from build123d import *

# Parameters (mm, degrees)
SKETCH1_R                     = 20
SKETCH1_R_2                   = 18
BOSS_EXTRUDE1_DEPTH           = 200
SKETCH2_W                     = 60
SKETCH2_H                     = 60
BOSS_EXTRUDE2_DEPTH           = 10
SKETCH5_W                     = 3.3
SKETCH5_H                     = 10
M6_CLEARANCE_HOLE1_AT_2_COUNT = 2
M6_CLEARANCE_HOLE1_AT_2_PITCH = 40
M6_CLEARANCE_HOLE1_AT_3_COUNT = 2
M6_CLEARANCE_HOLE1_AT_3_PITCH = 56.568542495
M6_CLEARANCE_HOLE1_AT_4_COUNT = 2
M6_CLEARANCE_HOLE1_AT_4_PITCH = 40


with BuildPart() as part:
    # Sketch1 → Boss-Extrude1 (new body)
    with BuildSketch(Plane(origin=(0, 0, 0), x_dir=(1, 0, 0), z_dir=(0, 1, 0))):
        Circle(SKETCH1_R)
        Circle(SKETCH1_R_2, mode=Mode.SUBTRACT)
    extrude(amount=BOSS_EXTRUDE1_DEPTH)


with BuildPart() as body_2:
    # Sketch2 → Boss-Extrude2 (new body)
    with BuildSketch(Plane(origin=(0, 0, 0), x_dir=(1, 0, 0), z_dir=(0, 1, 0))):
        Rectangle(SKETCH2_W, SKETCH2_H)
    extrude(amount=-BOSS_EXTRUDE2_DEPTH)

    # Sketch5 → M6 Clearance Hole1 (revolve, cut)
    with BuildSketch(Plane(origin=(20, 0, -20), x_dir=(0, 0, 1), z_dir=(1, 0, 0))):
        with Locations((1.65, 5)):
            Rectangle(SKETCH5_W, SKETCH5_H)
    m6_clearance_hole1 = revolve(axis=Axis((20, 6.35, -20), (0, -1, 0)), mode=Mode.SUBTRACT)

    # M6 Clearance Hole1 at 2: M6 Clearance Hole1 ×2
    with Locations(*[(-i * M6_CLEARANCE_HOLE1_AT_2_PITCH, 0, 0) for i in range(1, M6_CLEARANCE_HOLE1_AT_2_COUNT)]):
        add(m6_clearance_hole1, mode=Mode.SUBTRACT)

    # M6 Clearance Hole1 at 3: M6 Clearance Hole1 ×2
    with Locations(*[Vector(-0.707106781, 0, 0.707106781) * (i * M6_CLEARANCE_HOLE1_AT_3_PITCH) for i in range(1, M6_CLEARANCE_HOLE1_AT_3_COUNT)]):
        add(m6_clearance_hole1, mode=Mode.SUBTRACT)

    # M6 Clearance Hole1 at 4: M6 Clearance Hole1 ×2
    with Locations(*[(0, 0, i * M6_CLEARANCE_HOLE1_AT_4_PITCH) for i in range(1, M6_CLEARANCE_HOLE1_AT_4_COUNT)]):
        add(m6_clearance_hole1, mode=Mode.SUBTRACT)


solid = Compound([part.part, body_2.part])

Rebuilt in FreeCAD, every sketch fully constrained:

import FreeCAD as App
import Part
import Sketcher
from FreeCAD import Vector


def add_polygon(sketch, points):
    """Adds a closed chain of lines whose ends are joined by coincident constraints."""
    first, n = sketch.GeometryCount, len(points)
    for a, b in zip(points, points[1:] + points[:1]):
        sketch.addGeometry(Part.LineSegment(App.Vector(*a, 0), App.Vector(*b, 0)), False)
    for i in range(n):
        sketch.addConstraint(Sketcher.Constraint("Coincident", first + i, 2, first + (i + 1) % n, 1))

doc = App.newDocument("Part")
body = doc.addObject("PartDesign::Body", "Body")

sketch1 = body.newObject("Sketcher::SketchObject", "Sketch")
sketch1.AttachmentSupport = (doc.getObject("XZ_Plane"), [""])
sketch1.MapMode = "FlatFace"
sketch1.addGeometry([
    Part.Circle(Vector(0, 0, 0), Vector(0, 0, 1), 20),
    Part.Circle(Vector(0, 0, 0), Vector(0, 0, 1), 18),
], False)
sketch1.addConstraint([
    Sketcher.Constraint("Coincident", 0, 3, -1, 1),
    Sketcher.Constraint("Coincident", 1, 3, -1, 1),
    Sketcher.Constraint("Diameter", 0, 40.0),
    Sketcher.Constraint("Diameter", 1, 36.0),
])
pad1 = body.newObject("PartDesign::Pad", "Pad")
pad1.Profile = sketch1
pad1.Length = 200
pad1.Reversed = True
body2 = doc.addObject("PartDesign::Body", "Body001")

sketch2 = body2.newObject("Sketcher::SketchObject", "Sketch001")
sketch2.AttachmentSupport = (doc.getObject("XZ_Plane001"), [""])
sketch2.MapMode = "FlatFace"
add_polygon(sketch2, [(-30, -30), (-30, 30), (30, 30), (30, -30)])
sketch2.addConstraint([
    Sketcher.Constraint("Vertical", 0),
    Sketcher.Constraint("Horizontal", 1),
    Sketcher.Constraint("Vertical", 2),
    Sketcher.Constraint("Horizontal", 3),
    Sketcher.Constraint("Symmetric", 0, 2, 2, 2, -1, 1),
    Sketcher.Constraint("Equal", 3, 0),
    Sketcher.Constraint("DistanceX", 1, 1, 1, 2, 60.0),
])
pad2 = body2.newObject("PartDesign::Pad", "Pad001")
pad2.Profile = sketch2
pad2.Length = 10

sketch3 = body2.newObject("Sketcher::SketchObject", "Sketch002")
sketch3.AttachmentSupport = (doc.getObject("YZ_Plane001"), [""])
sketch3.MapMode = "FlatFace"
sketch3.AttachmentOffset = App.Placement(Vector(0, 0, 20), App.Rotation())
add_polygon(sketch3, [(-10, -20), (0, -20), (0, -16.7), (-10, -16.7)])
sketch3.addGeometry(Part.LineSegment(Vector(0, -20, 0), Vector(-10, -20, 0)), True)
sketch3.addConstraint([
    Sketcher.Constraint("Horizontal", 0),
    Sketcher.Constraint("Vertical", 1),
    Sketcher.Constraint("Horizontal", 2),
    Sketcher.Constraint("Vertical", 3),
    Sketcher.Constraint("Horizontal", 4),
    Sketcher.Constraint("Coincident", 4, 1, 0, 2),
    Sketcher.Constraint("PointOnObject", 0, 2, -2),
    Sketcher.Constraint("Vertical", 2, 2, 4, 2),
    Sketcher.Constraint("DistanceX", 0, 1, 0, 2, 10.0),
    Sketcher.Constraint("DistanceY", 1, 1, 1, 2, 3.3),
    Sketcher.Constraint("DistanceY", 0, 2, -1, 1, 20.0),
])
groove = body2.newObject("PartDesign::Groove", "Groove")
groove.Profile = sketch3
groove.ReferenceAxis = (sketch3, ["Axis0"])
groove.Angle = 360
doc.recompute()

linearpattern = body2.newObject("PartDesign::LinearPattern", "LinearPattern")
linearpattern.Originals = [groove]
linearpattern.Direction = (doc.getObject("X_Axis001"), [""])
linearpattern.Mode = "offset"
linearpattern.Offset = 40
linearpattern.Occurrences = 2
linearpattern.Reversed = True
body2.Tip = linearpattern
doc.recompute()

datumline = body2.newObject("PartDesign::Line", "DatumLine")
datumline.Placement = App.Placement(Vector(0, 0, 0), App.Rotation(Vector(0, 0, 1), Vector(-0.707106781, 0, 0.707106781)))
linearpattern2 = body2.newObject("PartDesign::LinearPattern", "LinearPattern001")
linearpattern2.Originals = [groove]
linearpattern2.Direction = (datumline, [""])
linearpattern2.Mode = "offset"
linearpattern2.Offset = 56.568542
linearpattern2.Occurrences = 2
body2.Tip = linearpattern2
doc.recompute()

linearpattern3 = body2.newObject("PartDesign::LinearPattern", "LinearPattern002")
linearpattern3.Originals = [groove]
linearpattern3.Direction = (doc.getObject("Z_Axis001"), [""])
linearpattern3.Mode = "offset"
linearpattern3.Offset = 40
linearpattern3.Occurrences = 2
body2.Tip = linearpattern3

doc.recompute()
